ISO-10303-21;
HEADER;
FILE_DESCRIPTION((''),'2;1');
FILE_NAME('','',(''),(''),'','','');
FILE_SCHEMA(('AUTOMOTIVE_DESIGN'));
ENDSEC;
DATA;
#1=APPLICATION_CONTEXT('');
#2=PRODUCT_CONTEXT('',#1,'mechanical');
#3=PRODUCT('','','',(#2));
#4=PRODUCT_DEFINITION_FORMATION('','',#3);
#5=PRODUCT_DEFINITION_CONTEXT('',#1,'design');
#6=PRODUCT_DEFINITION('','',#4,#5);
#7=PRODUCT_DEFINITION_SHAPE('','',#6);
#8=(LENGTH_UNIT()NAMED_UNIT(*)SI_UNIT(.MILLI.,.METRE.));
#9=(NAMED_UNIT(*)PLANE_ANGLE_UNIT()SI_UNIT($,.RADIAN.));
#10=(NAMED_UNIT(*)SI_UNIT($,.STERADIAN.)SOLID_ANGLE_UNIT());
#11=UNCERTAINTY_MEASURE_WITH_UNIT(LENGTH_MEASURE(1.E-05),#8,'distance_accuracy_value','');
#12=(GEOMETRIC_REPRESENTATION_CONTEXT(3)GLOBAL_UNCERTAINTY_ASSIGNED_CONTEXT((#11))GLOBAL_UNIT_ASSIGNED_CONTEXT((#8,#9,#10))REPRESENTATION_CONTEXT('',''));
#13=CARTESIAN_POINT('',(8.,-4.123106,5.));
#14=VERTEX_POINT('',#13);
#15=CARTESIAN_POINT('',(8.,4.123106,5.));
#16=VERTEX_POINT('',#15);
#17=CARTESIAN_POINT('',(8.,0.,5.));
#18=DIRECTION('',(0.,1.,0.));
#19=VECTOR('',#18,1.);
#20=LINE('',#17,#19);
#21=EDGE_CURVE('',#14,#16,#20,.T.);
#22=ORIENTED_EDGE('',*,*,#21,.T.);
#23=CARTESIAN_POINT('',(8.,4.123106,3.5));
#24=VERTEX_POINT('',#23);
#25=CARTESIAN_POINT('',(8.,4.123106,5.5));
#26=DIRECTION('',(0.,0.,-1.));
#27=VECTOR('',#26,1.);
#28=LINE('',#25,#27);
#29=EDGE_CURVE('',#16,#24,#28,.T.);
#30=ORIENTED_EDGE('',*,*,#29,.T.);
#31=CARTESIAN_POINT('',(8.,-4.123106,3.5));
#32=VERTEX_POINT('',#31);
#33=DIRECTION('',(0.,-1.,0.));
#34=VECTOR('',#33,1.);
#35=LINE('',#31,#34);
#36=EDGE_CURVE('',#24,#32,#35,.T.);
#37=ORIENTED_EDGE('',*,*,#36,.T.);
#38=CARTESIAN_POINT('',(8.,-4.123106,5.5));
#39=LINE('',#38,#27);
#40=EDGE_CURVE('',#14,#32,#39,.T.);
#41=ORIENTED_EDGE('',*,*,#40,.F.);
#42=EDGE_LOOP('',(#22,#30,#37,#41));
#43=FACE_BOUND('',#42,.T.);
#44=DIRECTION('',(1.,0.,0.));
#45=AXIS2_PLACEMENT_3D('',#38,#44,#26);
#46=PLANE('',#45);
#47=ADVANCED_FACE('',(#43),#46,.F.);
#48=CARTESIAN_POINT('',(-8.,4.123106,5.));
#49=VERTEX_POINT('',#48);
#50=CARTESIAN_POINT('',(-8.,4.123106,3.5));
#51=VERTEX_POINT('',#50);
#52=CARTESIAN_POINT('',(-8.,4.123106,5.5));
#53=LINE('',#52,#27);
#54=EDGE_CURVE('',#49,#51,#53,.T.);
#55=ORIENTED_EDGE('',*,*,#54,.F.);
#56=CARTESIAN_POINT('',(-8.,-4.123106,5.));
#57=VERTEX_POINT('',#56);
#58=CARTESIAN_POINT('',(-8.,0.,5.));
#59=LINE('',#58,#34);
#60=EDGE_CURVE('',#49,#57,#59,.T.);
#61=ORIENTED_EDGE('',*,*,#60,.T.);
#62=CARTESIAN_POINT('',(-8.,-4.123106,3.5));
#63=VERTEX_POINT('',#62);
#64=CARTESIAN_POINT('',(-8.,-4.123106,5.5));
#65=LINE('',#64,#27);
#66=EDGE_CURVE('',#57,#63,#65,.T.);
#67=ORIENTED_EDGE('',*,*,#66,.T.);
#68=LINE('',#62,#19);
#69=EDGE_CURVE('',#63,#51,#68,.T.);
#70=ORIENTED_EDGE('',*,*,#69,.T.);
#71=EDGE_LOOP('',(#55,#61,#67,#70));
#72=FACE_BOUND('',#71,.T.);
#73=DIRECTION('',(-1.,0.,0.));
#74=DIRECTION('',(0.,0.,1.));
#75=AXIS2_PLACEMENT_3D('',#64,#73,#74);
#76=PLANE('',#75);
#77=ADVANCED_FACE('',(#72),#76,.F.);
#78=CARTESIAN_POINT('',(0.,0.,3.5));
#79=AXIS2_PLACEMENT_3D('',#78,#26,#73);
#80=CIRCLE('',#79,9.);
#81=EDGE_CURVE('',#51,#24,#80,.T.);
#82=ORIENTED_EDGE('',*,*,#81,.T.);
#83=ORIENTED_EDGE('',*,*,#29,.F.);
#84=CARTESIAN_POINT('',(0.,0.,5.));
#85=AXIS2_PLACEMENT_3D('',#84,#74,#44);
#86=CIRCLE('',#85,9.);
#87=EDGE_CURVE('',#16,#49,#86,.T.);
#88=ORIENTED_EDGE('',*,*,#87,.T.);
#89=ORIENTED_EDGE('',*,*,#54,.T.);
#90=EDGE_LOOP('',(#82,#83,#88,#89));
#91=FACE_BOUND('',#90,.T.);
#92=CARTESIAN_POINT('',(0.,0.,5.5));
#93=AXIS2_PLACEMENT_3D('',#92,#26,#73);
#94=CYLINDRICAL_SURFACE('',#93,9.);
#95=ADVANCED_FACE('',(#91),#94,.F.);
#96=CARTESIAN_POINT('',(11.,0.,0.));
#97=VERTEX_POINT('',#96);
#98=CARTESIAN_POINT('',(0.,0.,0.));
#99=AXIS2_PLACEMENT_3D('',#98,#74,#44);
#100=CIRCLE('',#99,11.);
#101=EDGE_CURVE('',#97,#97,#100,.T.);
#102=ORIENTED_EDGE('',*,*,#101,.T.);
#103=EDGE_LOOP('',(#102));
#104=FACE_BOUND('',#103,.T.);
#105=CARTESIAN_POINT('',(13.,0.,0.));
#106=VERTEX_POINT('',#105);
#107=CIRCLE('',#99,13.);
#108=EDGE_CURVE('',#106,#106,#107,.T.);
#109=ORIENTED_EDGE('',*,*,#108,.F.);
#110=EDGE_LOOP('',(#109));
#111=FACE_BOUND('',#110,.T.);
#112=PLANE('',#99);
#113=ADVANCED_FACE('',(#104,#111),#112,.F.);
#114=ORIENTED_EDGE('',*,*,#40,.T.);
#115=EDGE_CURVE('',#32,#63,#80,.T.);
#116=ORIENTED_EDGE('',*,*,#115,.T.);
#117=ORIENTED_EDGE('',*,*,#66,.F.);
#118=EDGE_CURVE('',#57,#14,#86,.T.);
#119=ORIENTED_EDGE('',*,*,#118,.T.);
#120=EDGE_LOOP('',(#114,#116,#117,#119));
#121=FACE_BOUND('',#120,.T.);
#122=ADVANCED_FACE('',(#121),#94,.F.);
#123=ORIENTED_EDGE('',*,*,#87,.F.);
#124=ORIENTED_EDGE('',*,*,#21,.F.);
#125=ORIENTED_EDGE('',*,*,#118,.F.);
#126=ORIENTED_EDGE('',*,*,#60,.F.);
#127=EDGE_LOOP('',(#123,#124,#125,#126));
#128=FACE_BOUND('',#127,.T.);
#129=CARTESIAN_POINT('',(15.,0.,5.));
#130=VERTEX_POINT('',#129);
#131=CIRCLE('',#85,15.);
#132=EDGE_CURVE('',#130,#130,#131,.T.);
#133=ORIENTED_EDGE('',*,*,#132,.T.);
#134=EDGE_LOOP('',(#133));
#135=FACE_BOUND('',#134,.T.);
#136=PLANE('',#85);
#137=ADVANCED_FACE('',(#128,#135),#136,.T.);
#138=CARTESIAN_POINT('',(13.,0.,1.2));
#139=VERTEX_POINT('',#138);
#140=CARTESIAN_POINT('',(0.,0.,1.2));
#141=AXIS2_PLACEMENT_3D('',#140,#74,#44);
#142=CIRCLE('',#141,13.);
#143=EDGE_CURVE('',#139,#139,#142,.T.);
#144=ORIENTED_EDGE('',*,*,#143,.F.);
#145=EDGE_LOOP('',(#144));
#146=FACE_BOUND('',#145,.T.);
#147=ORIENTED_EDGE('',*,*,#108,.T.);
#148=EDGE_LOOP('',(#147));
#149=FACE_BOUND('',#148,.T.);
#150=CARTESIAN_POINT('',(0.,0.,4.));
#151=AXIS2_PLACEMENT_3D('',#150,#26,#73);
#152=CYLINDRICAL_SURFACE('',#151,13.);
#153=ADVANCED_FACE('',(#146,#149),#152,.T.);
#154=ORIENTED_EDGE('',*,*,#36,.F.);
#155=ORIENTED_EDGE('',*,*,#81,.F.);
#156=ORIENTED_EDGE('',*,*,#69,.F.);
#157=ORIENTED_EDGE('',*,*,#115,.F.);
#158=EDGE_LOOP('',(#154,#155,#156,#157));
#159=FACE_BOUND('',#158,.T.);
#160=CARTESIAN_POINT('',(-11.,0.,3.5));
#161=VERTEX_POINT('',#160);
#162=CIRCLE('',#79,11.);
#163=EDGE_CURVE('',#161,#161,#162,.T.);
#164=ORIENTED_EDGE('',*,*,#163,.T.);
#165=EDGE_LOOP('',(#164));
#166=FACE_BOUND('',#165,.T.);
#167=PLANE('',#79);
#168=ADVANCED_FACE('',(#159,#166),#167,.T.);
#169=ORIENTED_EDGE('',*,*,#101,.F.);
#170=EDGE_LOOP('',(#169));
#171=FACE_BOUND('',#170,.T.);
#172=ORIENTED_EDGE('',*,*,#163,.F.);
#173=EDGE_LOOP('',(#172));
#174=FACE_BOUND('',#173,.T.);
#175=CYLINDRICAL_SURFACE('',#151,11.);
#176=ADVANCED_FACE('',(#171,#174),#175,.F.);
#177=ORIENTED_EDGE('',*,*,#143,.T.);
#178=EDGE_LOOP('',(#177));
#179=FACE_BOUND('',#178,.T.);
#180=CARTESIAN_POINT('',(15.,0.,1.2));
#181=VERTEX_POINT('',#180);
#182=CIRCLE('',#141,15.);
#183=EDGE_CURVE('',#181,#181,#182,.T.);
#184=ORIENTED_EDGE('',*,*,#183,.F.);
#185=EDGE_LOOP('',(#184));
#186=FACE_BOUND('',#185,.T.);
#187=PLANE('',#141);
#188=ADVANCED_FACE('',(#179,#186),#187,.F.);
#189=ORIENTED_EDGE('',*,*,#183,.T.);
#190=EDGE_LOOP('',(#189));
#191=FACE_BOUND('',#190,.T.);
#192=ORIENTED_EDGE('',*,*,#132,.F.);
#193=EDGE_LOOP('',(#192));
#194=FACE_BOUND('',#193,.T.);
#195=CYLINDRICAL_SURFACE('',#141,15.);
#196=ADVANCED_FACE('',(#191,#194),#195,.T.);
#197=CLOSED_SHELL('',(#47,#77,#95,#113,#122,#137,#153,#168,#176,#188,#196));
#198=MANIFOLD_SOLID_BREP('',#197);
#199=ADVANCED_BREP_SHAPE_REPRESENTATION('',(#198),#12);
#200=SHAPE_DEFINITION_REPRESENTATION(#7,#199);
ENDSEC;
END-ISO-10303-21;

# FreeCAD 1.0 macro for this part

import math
import FreeCAD as App
import Part
import Sketcher
from FreeCAD import Vector
Q = App.Units.Quantity

doc = App.newDocument("Part")
params = doc.addObject("Spreadsheet::Sheet", "Params")
for row, (alias, value) in enumerate([
    ("sketch1_diameter", "26 mm"),
    ("sketch1_diameter2", "22 mm"),
    ("pad1_length", "4 mm"),
    ("sketch2_diameter", "30 mm"),
    ("pad2_length", "1 mm"),
    ("pad2_length2", "2.8 mm"),
    ("sketch3_diameter", "22 mm"),
    ("pocket1_length", "2.3 mm"),
    ("sketch4_radius", "9 mm"),
    ("pocket2_length", "2 mm"),
], start=1):
    params.set(f"A{row}", alias)
    params.set(f"B{row}", "=" + value)
    params.setAlias(f"B{row}", alias)

body = doc.addObject("PartDesign::Body", "Body")

# Sketch on XY plane
sketch1 = body.newObject("Sketcher::SketchObject", "Sketch")
sketch1.AttachmentSupport = (doc.getObject("XY_Plane"), [""])
sketch1.MapMode = "FlatFace"
sketch1.addGeometry(Part.Circle(Vector(0, 0, 0), Vector(0, 0, 1), 13), False)
sketch1.addGeometry(Part.Circle(Vector(0, 0, 0), Vector(0, 0, 1), 11), False)
sketch1.addConstraint(Sketcher.Constraint("Coincident", 0, 3, -1, 1))
sketch1.addConstraint(Sketcher.Constraint("Coincident", 1, 3, -1, 1))
sketch1.addConstraint(Sketcher.Constraint("Diameter", 0, Q("26 mm")))
sketch1.addConstraint(Sketcher.Constraint("Diameter", 1, Q("22 mm")))
sketch1.setExpression("Constraints[2]", "Params.sketch1_diameter")
sketch1.setExpression("Constraints[3]", "Params.sketch1_diameter2")
pad1 = body.newObject("PartDesign::Pad", "Pad")
pad1.Profile = sketch1
pad1.setExpression("Length", "Params.pad1_length")

# Sketch on XY plane
sketch2 = body.newObject("Sketcher::SketchObject", "Sketch001")
sketch2.AttachmentSupport = (doc.getObject("XY_Plane"), [""])
sketch2.MapMode = "FlatFace"
sketch2.AttachmentOffset = App.Placement(Vector(0, 0, 4), App.Rotation())
sketch2.addGeometry(Part.Circle(Vector(0, 0, 0), Vector(0, 0, 1), 15), False)
sketch2.addConstraint(Sketcher.Constraint("Coincident", 0, 3, -1, 1))
sketch2.addConstraint(Sketcher.Constraint("Diameter", 0, Q("30 mm")))
sketch2.setExpression("Constraints[1]", "Params.sketch2_diameter")
pad2 = body.newObject("PartDesign::Pad", "Pad001")
pad2.Profile = sketch2
pad2.Type = "TwoLengths"
pad2.setExpression("Length", "Params.pad2_length")
pad2.setExpression("Length2", "Params.pad2_length2")

# Sketch on XY plane
sketch3 = body.newObject("Sketcher::SketchObject", "Sketch002")
sketch3.AttachmentSupport = (doc.getObject("XY_Plane"), [""])
sketch3.MapMode = "FlatFace"
sketch3.AttachmentOffset = App.Placement(Vector(0, 0, 1.2), App.Rotation())
sketch3.addGeometry(Part.Circle(Vector(0, 0, 0), Vector(0, 0, 1), 11), False)
sketch3.addConstraint(Sketcher.Constraint("Coincident", 0, 3, -1, 1))
sketch3.addConstraint(Sketcher.Constraint("Diameter", 0, Q("22 mm")))
sketch3.setExpression("Constraints[1]", "Params.sketch3_diameter")
pocket1 = body.newObject("PartDesign::Pocket", "Pocket")
pocket1.Profile = sketch3
pocket1.setExpression("Length", "Params.pocket1_length")
pocket1.Reversed = True

# Sketch on XY plane
sketch4 = body.newObject("Sketcher::SketchObject", "Sketch003")
sketch4.AttachmentSupport = (doc.getObject("XY_Plane"), [""])
sketch4.MapMode = "FlatFace"
sketch4.AttachmentOffset = App.Placement(Vector(0, 0, 3.5), App.Rotation())
sketch4.addGeometry(Part.LineSegment(Vector(8, 4, 0), Vector(8, -4, 0)), False)
sketch4.addGeometry(Part.ArcOfCircle(Part.Circle(Vector(0, 0, 0), Vector(0, 0, 1), 9), math.radians(-153), math.radians(-27)), False)
sketch4.addGeometry(Part.LineSegment(Vector(-8, -4, 0), Vector(-8, 4, 0)), False)
sketch4.addGeometry(Part.ArcOfCircle(Part.Circle(Vector(0, 0, 0), Vector(0, 0, 1), 9), math.radians(27), math.radians(153)), False)
sketch4.addConstraint(Sketcher.Constraint("Coincident", 0, 2, 1, 2))
sketch4.addConstraint(Sketcher.Constraint("Coincident", 1, 1, 2, 1))
sketch4.addConstraint(Sketcher.Constraint("Coincident", 2, 2, 3, 2))
sketch4.addConstraint(Sketcher.Constraint("Coincident", 3, 1, 0, 1))
sketch4.addConstraint(Sketcher.Constraint("Vertical", 0))
sketch4.addConstraint(Sketcher.Constraint("Vertical", 2))
sketch4.addConstraint(Sketcher.Constraint("Coincident", 1, 3, -1, 1))
sketch4.addConstraint(Sketcher.Constraint("Coincident", 3, 3, -1, 1))
sketch4.addConstraint(Sketcher.Constraint("Equal", 1, 3))
sketch4.addConstraint(Sketcher.Constraint("Horizontal", 0, 2, 1, 1))
sketch4.addConstraint(Sketcher.Constraint("Radius", 1, Q("9 mm")))
sketch4.addConstraint(Sketcher.Constraint("DistanceX", -1, 1, 0, 2, Q("8 mm")))
sketch4.setExpression("Constraints[10]", "Params.sketch4_radius")
pocket2 = body.newObject("PartDesign::Pocket", "Pocket001")
pocket2.Profile = sketch4
pocket2.setExpression("Length", "Params.pocket2_length")
pocket2.Reversed = True

doc.recompute()
